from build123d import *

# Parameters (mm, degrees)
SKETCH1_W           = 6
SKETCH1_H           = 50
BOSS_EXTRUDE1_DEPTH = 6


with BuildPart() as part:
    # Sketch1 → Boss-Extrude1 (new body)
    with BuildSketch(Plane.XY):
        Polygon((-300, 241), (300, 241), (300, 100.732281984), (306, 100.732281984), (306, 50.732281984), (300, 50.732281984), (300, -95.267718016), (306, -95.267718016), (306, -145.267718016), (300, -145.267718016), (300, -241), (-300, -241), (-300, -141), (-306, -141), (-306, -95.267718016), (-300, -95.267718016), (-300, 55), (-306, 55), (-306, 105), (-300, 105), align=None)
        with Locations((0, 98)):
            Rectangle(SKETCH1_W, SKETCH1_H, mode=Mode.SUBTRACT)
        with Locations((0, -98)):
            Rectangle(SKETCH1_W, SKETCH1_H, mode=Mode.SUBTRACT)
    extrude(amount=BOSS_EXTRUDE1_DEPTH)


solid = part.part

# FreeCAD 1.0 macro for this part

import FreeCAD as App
import Part
import Sketcher
from FreeCAD import Vector
Q = App.Units.Quantity


def add_polygon(sketch, points):
    """Adds a closed chain of lines whose ends are joined by coincident constraints."""
    first, n = sketch.GeometryCount, len(points)
    for a, b in zip(points, points[1:] + points[:1]):
        sketch.addGeometry(Part.LineSegment(App.Vector(*a, 0), App.Vector(*b, 0)), False)
    for i in range(n):
        sketch.addConstraint(Sketcher.Constraint("Coincident", first + i, 2, first + (i + 1) % n, 1))

doc = App.newDocument("Part")
body = doc.addObject("PartDesign::Body", "Body")

sketch1 = body.newObject("Sketcher::SketchObject", "Sketch")
sketch1.AttachmentSupport = (doc.getObject("XY_Plane"), [""])
sketch1.MapMode = "FlatFace"
add_polygon(sketch1, [(300, 241), (-300, 241), (-300, 105), (-306, 105), (-306, 55), (-300, 55), (-300, -95), (-306, -95), (-306, -141), (-300, -141), (-300, -241), (300, -241), (300, -145), (306, -145), (306, -95), (300, -95), (300, 51), (306, 51), (306, 101), (300, 101)])
add_polygon(sketch1, [(-3, -123), (-3, -73), (3, -73), (3, -123)])
add_polygon(sketch1, [(-3, 73), (-3, 123), (3, 123), (3, 73)])
sketch1.addConstraint([
    Sketcher.Constraint("Horizontal", 0),
    Sketcher.Constraint("Vertical", 1),
    Sketcher.Constraint("Horizontal", 2),
    Sketcher.Constraint("Vertical", 3),
    Sketcher.Constraint("Horizontal", 4),
    Sketcher.Constraint("Vertical", 5),
    Sketcher.Constraint("Horizontal", 6),
    Sketcher.Constraint("Vertical", 7),
    Sketcher.Constraint("Horizontal", 8),
    Sketcher.Constraint("Vertical", 9),
    Sketcher.Constraint("Horizontal", 10),
    Sketcher.Constraint("Vertical", 11),
    Sketcher.Constraint("Horizontal", 12),
    Sketcher.Constraint("Vertical", 13),
    Sketcher.Constraint("Horizontal", 14),
    Sketcher.Constraint("Vertical", 15),
    Sketcher.Constraint("Horizontal", 16),
    Sketcher.Constraint("Vertical", 17),
    Sketcher.Constraint("Horizontal", 18),
    Sketcher.Constraint("Vertical", 19),
    Sketcher.Constraint("Vertical", 20),
    Sketcher.Constraint("Horizontal", 21),
    Sketcher.Constraint("Vertical", 22),
    Sketcher.Constraint("Horizontal", 23),
    Sketcher.Constraint("Vertical", 24),
    Sketcher.Constraint("Horizontal", 25),
    Sketcher.Constraint("Vertical", 26),
    Sketcher.Constraint("Horizontal", 27),
    Sketcher.Constraint("Symmetric", 0, 2, 10, 2, -1, 1),
    Sketcher.Constraint("Symmetric", 22, 2, 24, 2, -1, 1),
    Sketcher.Constraint("Symmetric", 20, 2, 26, 2, -1, 1),
    Sketcher.Constraint("Symmetric", 6, 2, 13, 2, -2),
    Sketcher.Constraint("Vertical", 1, 2, 4, 2),
    Sketcher.Constraint("Vertical", 3, 2, 6, 2),
    Sketcher.Constraint("Vertical", 5, 2, 8, 2),
    Sketcher.Constraint("Vertical", 11, 2, 14, 2),
    Sketcher.Constraint("Vertical", 13, 2, 16, 2),
    Sketcher.Constraint("Vertical", 15, 2, 18, 2),
    Sketcher.Constraint("Vertical", 23, 2, 24, 2),
    Sketcher.Constraint("Equal", 18, 21),
    Sketcher.Constraint("Equal", 3, 13),
    Sketcher.Constraint("Equal", 13, 17),
    Sketcher.Constraint("Equal", 17, 20),
    Sketcher.Constraint("DistanceX", 0, 2, 0, 1, Q("600 mm")),
    Sketcher.Constraint("DistanceX", 2, 2, 2, 1, Q("6 mm")),
    Sketcher.Constraint("DistanceY", 1, 2, 1, 1, Q("136 mm")),
    Sketcher.Constraint("DistanceY", 3, 2, 3, 1, Q("50 mm")),
    Sketcher.Constraint("DistanceY", 9, 2, 9, 1, Q("100 mm")),
    Sketcher.Constraint("DistanceY", 15, 1, 15, 2, Q("146 mm")),
    Sketcher.Constraint("DistanceY", -1, 1, 0, 2, Q("241 mm")),
    Sketcher.Constraint("DistanceY", 20, 2, -1, 1, Q("73 mm")),
    Sketcher.Constraint("DistanceY", 5, 2, 5, 1, Q("150.267718 mm")),
])
pad1 = body.newObject("PartDesign::Pad", "Pad")
pad1.Profile = sketch1
pad1.Length = 6

doc.recompute()
